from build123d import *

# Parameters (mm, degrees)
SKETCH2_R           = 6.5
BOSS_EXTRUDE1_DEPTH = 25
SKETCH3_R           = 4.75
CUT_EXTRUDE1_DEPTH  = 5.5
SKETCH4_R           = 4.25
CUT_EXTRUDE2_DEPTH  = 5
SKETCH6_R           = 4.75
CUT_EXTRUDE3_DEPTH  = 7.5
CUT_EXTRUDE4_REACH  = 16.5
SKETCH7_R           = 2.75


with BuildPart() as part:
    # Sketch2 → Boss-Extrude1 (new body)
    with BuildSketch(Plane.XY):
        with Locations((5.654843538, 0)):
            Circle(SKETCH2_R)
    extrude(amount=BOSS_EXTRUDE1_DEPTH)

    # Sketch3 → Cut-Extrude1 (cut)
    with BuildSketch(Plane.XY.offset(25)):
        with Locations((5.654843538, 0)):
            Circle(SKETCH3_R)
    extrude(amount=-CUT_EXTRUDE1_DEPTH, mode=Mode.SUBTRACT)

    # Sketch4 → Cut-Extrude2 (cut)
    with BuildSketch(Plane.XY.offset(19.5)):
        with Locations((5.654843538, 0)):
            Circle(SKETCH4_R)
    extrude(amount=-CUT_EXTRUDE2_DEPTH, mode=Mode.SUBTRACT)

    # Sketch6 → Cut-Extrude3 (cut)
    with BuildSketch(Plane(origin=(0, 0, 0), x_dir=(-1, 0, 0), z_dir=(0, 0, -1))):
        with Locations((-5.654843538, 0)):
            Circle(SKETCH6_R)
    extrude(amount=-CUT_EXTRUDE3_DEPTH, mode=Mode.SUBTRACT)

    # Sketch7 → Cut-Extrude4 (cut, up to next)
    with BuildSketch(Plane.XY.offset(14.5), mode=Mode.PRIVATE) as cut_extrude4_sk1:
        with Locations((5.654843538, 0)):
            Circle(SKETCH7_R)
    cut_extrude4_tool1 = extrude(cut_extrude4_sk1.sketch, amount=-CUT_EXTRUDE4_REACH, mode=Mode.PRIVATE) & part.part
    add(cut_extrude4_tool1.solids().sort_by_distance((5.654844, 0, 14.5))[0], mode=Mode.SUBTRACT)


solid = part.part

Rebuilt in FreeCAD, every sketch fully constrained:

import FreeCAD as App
import Part
import Sketcher
from FreeCAD import Vector
Q = App.Units.Quantity

doc = App.newDocument("Part")
body = doc.addObject("PartDesign::Body", "Body")

sketch1 = body.newObject("Sketcher::SketchObject", "Sketch")
sketch1.AttachmentSupport = (doc.getObject("XY_Plane"), [""])
sketch1.MapMode = "FlatFace"
sketch1.addGeometry(Part.Circle(Vector(6, 0, 0), Vector(0, 0, 1), 6), False)
sketch1.addConstraint([
    Sketcher.Constraint("PointOnObject", 0, 3, -1),
    Sketcher.Constraint("Diameter", 0, Q("13 mm")),
    Sketcher.Constraint("DistanceX", -1, 1, 0, 3, Q("5.654844 mm")),
])
pad1 = body.newObject("PartDesign::Pad", "Pad")
pad1.Profile = sketch1
pad1.Length = 25

sketch2 = body.newObject("Sketcher::SketchObject", "Sketch001")
sketch2.AttachmentSupport = (doc.getObject("XY_Plane"), [""])
sketch2.MapMode = "FlatFace"
sketch2.AttachmentOffset = App.Placement(Vector(0, 0, 25), App.Rotation())
sketch2.addGeometry(Part.Circle(Vector(5.7, 0, 0), Vector(0, 0, 1), 4.8), False)
sketch2.addConstraint([
    Sketcher.Constraint("PointOnObject", 0, 3, -1),
    Sketcher.Constraint("Diameter", 0, Q("9.5 mm")),
    Sketcher.Constraint("DistanceX", -1, 1, 0, 3, Q("5.654844 mm")),
])
pocket1 = body.newObject("PartDesign::Pocket", "Pocket")
pocket1.Profile = sketch2
pocket1.Length = 5.5

sketch3 = body.newObject("Sketcher::SketchObject", "Sketch002")
sketch3.AttachmentSupport = (doc.getObject("XY_Plane"), [""])
sketch3.MapMode = "FlatFace"
sketch3.AttachmentOffset = App.Placement(Vector(0, 0, 19.5), App.Rotation())
sketch3.addGeometry(Part.Circle(Vector(5.7, 0, 0), Vector(0, 0, 1), 4.2), False)
sketch3.addConstraint([
    Sketcher.Constraint("PointOnObject", 0, 3, -1),
    Sketcher.Constraint("Diameter", 0, Q("8.5 mm")),
    Sketcher.Constraint("DistanceX", -1, 1, 0, 3, Q("5.654844 mm")),
])
pocket2 = body.newObject("PartDesign::Pocket", "Pocket001")
pocket2.Profile = sketch3
pocket2.Length = 5

sketch4 = body.newObject("Sketcher::SketchObject", "Sketch003")
sketch4.AttachmentSupport = (doc.getObject("XY_Plane"), [""])
sketch4.MapMode = "FlatFace"
sketch4.addGeometry(Part.Circle(Vector(5.7, 0, 0), Vector(0, 0, 1), 4.8), False)
sketch4.addConstraint([
    Sketcher.Constraint("PointOnObject", 0, 3, -1),
    Sketcher.Constraint("Diameter", 0, Q("9.5 mm")),
    Sketcher.Constraint("DistanceX", -1, 1, 0, 3, Q("5.654844 mm")),
])
pocket3 = body.newObject("PartDesign::Pocket", "Pocket002")
pocket3.Profile = sketch4
pocket3.Length = 7.5
pocket3.Reversed = True

sketch5 = body.newObject("Sketcher::SketchObject", "Sketch004")
sketch5.AttachmentSupport = (doc.getObject("XY_Plane"), [""])
sketch5.MapMode = "FlatFace"
sketch5.AttachmentOffset = App.Placement(Vector(0, 0, 14.5), App.Rotation())
sketch5.addGeometry(Part.Circle(Vector(5.7, 0, 0), Vector(0, 0, 1), 2.8), False)
sketch5.addConstraint([
    Sketcher.Constraint("PointOnObject", 0, 3, -1),
    Sketcher.Constraint("Diameter", 0, Q("5.5 mm")),
    Sketcher.Constraint("DistanceX", -1, 1, 0, 3, Q("5.654844 mm")),
])
pocket4 = body.newObject("PartDesign::Pocket", "Pocket003")
pocket4.Profile = sketch5
pocket4.Type = "UpToFirst"

doc.recompute()
